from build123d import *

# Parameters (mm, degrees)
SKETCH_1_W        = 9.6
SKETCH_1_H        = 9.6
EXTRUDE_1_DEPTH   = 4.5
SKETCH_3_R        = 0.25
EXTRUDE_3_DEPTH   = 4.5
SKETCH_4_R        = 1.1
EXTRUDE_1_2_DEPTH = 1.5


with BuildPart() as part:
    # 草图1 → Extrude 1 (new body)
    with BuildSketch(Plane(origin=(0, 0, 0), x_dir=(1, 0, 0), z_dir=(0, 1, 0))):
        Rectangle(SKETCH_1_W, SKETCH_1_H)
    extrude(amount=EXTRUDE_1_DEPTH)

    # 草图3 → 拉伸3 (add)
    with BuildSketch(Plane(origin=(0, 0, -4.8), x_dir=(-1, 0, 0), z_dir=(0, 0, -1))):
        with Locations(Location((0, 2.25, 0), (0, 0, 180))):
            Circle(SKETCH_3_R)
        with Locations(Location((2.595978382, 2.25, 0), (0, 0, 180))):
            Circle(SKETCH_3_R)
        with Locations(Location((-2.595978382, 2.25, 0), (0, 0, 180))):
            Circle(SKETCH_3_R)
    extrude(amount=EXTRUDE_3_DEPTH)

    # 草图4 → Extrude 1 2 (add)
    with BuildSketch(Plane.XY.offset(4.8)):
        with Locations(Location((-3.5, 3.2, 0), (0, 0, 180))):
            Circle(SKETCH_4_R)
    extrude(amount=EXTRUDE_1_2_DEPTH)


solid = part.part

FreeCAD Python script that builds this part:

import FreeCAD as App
import Part
import Sketcher
Q = App.Units.Quantity


def add_polygon(sketch, points):
    """Adds a closed chain of lines whose ends are joined by coincident constraints."""
    first, n = sketch.GeometryCount, len(points)
    for a, b in zip(points, points[1:] + points[:1]):
        sketch.addGeometry(Part.LineSegment(App.Vector(*a, 0), App.Vector(*b, 0)), False)
    for i in range(n):
        sketch.addConstraint(Sketcher.Constraint("Coincident", first + i, 2, first + (i + 1) % n, 1))

doc = App.newDocument("Part")
params = doc.addObject("Spreadsheet::Sheet", "Params")
for row, (alias, value) in enumerate([
    ("sketch1_width", "9.6 mm"),
    ("pad1_length", "4.5 mm"),
    ("sketch2_diameter", "0.5 mm"),
    ("pad2_length", "4.5 mm"),
    ("sketch3_diameter", "2.2 mm"),
    ("pad3_length", "1.5 mm"),
], start=1):
    params.set(f"A{row}", alias)
    params.set(f"B{row}", "=" + value)
    params.setAlias(f"B{row}", alias)

body = doc.addObject("PartDesign::Body", "Body")

sketch1 = doc.addObject("Sketcher::SketchObject", "Sketch")
body.addObject(sketch1)
sketch1.AttachmentSupport = (doc.XZ_Plane, [""])
sketch1.MapMode = "FlatFace"
add_polygon(sketch1, [(-5, -5), (-5, 5), (5, 5), (5, -5)])
sketch1.addConstraint([
    Sketcher.Constraint("Vertical", 0),
    Sketcher.Constraint("Horizontal", 1),
    Sketcher.Constraint("Vertical", 2),
    Sketcher.Constraint("Horizontal", 3),
    Sketcher.Constraint("Symmetric", 0, 2, 2, 2, -1, 1),
    Sketcher.Constraint("Equal", 3, 0),
    Sketcher.Constraint("DistanceX", 1, 1, 1, 2, Q("9.6 mm")),
])
sketch1.setExpression("Constraints[10]", "Params.sketch1_width")
pad1 = doc.addObject("PartDesign::Pad", "Pad")
body.addObject(pad1)
pad1.Profile = sketch1
pad1.setExpression("Length", "Params.pad1_length")
pad1.Reversed = True

sketch2 = doc.addObject("Sketcher::SketchObject", "Sketch001")
body.addObject(sketch2)
sketch2.AttachmentSupport = (doc.XY_Plane, [""])
sketch2.MapMode = "FlatFace"
sketch2.AttachmentOffset = App.Placement(App.Vector(0, 0, -4.8), App.Rotation())
sketch2.addGeometry([
    Part.Circle(App.Vector(0, 2.25, 0), App.Vector(0, 0, 1), 0.25),
    Part.Circle(App.Vector(-2.6, 2.25, 0), App.Vector(0, 0, 1), 0.25),
    Part.Circle(App.Vector(2.6, 2.25, 0), App.Vector(0, 0, 1), 0.25),
], False)
sketch2.addConstraint([
    Sketcher.Constraint("Equal", 0, 1),
    Sketcher.Constraint("Equal", 1, 2),
    Sketcher.Constraint("Symmetric", 1, 3, 2, 3, -2),
    Sketcher.Constraint("PointOnObject", 0, 3, -2),
    Sketcher.Constraint("Horizontal", 0, 3, 1, 3),
    Sketcher.Constraint("Diameter", 0, Q("0.5 mm")),
    Sketcher.Constraint("DistanceY", -1, 1, 0, 3, Q("2.25 mm")),
    Sketcher.Constraint("DistanceX", 1, 3, -1, 1, Q("2.595978 mm")),
])
sketch2.setExpression("Constraints[5]", "Params.sketch2_diameter")
pad2 = doc.addObject("PartDesign::Pad", "Pad001")
body.addObject(pad2)
pad2.Profile = sketch2
pad2.setExpression("Length", "Params.pad2_length")
pad2.Reversed = True

sketch3 = doc.addObject("Sketcher::SketchObject", "Sketch002")
body.addObject(sketch3)
sketch3.AttachmentSupport = (doc.XY_Plane, [""])
sketch3.MapMode = "FlatFace"
sketch3.AttachmentOffset = App.Placement(App.Vector(0, 0, 4.8), App.Rotation())
sketch3.addGeometry(Part.Circle(App.Vector(-3.5, 3.2, 0), App.Vector(0, 0, 1), 1.1), False)
sketch3.addConstraint([
    Sketcher.Constraint("Diameter", 0, Q("2.2 mm")),
    Sketcher.Constraint("DistanceX", 0, 3, -1, 1, Q("3.5 mm")),
    Sketcher.Constraint("DistanceY", -1, 1, 0, 3, Q("3.2 mm")),
])
sketch3.setExpression("Constraints[0]", "Params.sketch3_diameter")
pad3 = doc.addObject("PartDesign::Pad", "Pad002")
body.addObject(pad3)
pad3.Profile = sketch3
pad3.setExpression("Length", "Params.pad3_length")

doc.recompute()
